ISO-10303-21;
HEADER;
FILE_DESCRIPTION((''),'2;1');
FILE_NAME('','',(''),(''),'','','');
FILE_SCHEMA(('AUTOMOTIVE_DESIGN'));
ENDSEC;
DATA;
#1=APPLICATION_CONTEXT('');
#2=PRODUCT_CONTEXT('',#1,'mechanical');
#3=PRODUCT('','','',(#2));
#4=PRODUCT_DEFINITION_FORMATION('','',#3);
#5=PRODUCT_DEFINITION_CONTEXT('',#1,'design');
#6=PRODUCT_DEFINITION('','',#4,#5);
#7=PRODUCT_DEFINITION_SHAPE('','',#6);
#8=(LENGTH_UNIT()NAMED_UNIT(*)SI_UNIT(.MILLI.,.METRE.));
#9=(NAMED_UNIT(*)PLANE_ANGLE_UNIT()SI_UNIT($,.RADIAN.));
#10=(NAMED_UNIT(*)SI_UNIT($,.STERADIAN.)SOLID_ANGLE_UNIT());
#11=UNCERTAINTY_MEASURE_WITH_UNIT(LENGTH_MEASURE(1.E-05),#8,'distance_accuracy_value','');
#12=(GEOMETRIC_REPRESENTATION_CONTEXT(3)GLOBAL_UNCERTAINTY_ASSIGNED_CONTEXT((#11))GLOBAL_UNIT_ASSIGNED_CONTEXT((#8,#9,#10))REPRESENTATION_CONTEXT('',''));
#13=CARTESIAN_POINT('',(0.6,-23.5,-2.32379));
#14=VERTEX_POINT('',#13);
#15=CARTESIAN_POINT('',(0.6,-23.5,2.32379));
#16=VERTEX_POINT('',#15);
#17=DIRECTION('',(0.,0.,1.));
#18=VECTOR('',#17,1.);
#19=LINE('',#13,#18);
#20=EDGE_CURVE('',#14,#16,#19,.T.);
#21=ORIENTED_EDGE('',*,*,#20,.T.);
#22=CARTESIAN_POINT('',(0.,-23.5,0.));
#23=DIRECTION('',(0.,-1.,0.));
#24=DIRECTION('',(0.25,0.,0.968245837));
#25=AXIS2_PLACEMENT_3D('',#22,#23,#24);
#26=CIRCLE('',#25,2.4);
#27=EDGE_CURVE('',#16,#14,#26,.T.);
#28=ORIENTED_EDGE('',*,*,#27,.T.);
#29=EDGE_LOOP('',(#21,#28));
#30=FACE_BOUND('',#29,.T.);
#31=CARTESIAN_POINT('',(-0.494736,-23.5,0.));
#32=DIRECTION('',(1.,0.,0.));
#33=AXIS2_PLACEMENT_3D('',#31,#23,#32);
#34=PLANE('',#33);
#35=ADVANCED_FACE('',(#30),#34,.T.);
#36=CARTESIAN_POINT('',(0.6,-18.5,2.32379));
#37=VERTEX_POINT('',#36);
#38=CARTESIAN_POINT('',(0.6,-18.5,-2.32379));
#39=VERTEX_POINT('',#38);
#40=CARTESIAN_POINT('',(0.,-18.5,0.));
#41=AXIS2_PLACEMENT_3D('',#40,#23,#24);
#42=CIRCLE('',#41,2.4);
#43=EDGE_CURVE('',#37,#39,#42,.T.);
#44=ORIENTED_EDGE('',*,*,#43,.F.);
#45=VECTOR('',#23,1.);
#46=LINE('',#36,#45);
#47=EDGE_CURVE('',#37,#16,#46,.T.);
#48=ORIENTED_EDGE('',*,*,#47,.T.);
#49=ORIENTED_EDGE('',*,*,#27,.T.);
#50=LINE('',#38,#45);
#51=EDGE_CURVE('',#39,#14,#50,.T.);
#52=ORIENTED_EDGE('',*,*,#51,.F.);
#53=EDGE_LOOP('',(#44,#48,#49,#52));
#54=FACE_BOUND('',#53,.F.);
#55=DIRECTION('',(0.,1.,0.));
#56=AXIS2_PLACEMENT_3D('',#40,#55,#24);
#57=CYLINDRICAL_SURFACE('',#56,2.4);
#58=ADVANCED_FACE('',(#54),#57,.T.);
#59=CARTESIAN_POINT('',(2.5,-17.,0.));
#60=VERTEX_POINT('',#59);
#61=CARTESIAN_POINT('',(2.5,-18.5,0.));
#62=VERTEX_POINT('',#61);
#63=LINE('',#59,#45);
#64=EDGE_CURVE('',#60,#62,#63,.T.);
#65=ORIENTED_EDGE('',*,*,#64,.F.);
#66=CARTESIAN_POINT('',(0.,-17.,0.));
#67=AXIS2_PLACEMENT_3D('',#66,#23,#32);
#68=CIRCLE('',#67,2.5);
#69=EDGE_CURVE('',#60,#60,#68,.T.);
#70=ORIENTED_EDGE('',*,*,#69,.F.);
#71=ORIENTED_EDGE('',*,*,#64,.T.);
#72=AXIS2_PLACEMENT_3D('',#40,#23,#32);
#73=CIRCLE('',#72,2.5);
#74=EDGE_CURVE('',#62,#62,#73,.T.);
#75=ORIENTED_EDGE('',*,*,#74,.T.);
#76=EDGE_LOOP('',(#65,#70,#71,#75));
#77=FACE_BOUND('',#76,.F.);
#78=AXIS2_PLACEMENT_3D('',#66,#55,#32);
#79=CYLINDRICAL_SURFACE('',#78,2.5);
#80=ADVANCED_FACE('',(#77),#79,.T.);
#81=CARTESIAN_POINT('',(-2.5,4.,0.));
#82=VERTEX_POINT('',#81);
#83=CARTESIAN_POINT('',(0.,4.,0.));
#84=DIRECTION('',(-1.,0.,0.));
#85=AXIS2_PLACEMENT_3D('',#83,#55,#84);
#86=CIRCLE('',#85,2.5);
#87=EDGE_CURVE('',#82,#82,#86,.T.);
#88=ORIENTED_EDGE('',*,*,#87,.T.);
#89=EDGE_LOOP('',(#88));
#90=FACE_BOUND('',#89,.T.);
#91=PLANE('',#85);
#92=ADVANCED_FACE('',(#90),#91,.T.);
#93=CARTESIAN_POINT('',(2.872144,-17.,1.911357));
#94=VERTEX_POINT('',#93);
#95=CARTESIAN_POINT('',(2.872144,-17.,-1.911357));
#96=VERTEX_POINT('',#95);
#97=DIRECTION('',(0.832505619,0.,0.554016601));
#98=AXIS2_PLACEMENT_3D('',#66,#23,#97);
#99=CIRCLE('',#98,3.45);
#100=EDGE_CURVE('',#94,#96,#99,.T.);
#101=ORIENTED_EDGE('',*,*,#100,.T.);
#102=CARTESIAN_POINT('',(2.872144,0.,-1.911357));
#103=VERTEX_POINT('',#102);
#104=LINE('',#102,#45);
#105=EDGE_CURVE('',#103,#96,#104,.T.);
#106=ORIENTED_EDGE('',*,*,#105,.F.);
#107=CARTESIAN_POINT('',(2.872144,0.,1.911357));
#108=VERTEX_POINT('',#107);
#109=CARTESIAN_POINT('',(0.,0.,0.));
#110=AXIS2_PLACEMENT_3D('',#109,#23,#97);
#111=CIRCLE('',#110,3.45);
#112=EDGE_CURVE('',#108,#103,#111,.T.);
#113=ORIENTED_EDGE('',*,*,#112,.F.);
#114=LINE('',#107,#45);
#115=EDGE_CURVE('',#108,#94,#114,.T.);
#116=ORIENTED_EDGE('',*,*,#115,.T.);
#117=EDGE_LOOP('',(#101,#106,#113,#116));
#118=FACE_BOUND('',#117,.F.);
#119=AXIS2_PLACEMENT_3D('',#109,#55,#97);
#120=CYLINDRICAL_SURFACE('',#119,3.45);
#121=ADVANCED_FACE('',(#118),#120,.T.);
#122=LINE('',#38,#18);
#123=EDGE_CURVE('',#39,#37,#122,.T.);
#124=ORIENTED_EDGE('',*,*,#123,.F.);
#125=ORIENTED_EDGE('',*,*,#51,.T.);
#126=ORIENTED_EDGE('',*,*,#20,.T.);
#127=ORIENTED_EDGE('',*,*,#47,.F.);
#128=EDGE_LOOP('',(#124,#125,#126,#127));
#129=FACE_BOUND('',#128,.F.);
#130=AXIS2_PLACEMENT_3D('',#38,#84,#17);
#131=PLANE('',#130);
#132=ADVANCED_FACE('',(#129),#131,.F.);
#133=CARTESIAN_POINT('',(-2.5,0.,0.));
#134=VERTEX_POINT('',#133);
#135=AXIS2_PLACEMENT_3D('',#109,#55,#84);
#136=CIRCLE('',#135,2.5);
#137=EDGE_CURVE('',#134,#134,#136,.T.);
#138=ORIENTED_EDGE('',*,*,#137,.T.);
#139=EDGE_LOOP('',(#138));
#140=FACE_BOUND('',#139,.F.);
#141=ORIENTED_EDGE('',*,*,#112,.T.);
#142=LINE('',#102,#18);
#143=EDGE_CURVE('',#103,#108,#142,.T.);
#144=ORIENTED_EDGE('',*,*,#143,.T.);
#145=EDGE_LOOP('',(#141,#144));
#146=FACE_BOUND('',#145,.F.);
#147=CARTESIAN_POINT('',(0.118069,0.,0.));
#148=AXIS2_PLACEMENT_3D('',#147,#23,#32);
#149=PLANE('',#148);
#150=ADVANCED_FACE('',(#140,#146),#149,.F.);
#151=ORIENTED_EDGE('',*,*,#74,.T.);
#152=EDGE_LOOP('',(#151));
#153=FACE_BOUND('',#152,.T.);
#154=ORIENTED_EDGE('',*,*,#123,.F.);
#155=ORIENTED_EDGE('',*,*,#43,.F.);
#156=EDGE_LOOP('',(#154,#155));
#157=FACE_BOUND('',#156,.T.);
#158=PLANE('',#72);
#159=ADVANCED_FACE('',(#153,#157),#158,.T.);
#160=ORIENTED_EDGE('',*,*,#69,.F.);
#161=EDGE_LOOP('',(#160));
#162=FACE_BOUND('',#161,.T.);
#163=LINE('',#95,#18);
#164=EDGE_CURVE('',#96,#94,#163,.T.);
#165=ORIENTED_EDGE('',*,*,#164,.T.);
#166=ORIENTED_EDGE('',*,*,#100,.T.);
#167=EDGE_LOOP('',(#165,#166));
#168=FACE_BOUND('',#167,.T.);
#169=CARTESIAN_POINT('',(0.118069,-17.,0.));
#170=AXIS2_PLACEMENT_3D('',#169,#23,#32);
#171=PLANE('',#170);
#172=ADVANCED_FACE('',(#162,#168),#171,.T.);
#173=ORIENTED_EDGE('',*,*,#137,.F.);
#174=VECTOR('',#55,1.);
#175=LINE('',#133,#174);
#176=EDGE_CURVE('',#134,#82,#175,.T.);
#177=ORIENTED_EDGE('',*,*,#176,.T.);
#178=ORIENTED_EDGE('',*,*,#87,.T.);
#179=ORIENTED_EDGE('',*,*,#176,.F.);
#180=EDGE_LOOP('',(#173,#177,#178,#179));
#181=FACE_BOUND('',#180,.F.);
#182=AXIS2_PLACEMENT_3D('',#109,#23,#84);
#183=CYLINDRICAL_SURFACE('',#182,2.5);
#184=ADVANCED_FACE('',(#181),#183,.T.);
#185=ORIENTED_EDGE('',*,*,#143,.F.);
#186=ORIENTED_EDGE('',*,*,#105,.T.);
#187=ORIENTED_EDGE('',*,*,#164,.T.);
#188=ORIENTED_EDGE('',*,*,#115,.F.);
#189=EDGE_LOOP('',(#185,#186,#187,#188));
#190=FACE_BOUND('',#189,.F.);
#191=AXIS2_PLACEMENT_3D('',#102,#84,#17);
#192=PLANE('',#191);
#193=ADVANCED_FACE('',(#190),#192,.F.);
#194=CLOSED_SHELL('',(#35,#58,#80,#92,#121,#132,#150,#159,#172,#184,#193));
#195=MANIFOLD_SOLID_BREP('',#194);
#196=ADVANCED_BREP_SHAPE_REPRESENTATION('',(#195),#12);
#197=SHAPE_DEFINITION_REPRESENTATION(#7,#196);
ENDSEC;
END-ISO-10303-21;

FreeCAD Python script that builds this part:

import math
import FreeCAD as App
import Part
import Sketcher
from FreeCAD import Vector
Q = App.Units.Quantity

doc = App.newDocument("Part")
params = doc.addObject("Spreadsheet::Sheet", "Params")
for row, (alias, value) in enumerate([
    ("sketch1_radius", "3.45 mm"),
    ("pad1_length", "17 mm"),
    ("sketch2_diameter", "5 mm"),
    ("pad2_length", "1.5 mm"),
    ("sketch3_diameter", "5 mm"),
    ("pad3_length", "4 mm"),
    ("sketch4_radius", "2.4 mm"),
    ("pad4_length", "5 mm"),
], start=1):
    params.set(f"A{row}", alias)
    params.set(f"B{row}", "=" + value)
    params.setAlias(f"B{row}", alias)

body = doc.addObject("PartDesign::Body", "Body")

sketch1 = body.newObject("Sketcher::SketchObject", "Sketch")
sketch1.AttachmentSupport = (doc.getObject("XZ_Plane"), [""])
sketch1.MapMode = "FlatFace"
sketch1.addGeometry([
    Part.LineSegment(Vector(2.9, -1.9, 0), Vector(2.9, 1.9, 0)),
    Part.ArcOfCircle(Part.Circle(Vector(0, 0, 0), Vector(0, 0, 1), 3.5), math.radians(34), math.radians(326)),
], False)
sketch1.addConstraint([
    Sketcher.Constraint("Coincident", 0, 1, 1, 2),
    Sketcher.Constraint("Coincident", 1, 1, 0, 2),
    Sketcher.Constraint("Vertical", 0),
    Sketcher.Constraint("Coincident", 1, 3, -1, 1),
    Sketcher.Constraint("Radius", 1, Q("3.45 mm")),
    Sketcher.Constraint("DistanceY", 0, 1, 0, 2, Q("3.822715 mm")),
])
sketch1.setExpression("Constraints[4]", "Params.sketch1_radius")
pad1 = body.newObject("PartDesign::Pad", "Pad")
pad1.Profile = sketch1
pad1.setExpression("Length", "Params.pad1_length")

sketch2 = body.newObject("Sketcher::SketchObject", "Sketch001")
sketch2.AttachmentSupport = (doc.getObject("XZ_Plane"), [""])
sketch2.MapMode = "FlatFace"
sketch2.AttachmentOffset = App.Placement(Vector(0, 0, 17), App.Rotation())
sketch2.addGeometry(Part.Circle(Vector(0, 0, 0), Vector(0, 0, 1), 2.5), False)
sketch2.addConstraint([
    Sketcher.Constraint("Coincident", 0, 3, -1, 1),
    Sketcher.Constraint("Diameter", 0, Q("5 mm")),
])
sketch2.setExpression("Constraints[1]", "Params.sketch2_diameter")
pad2 = body.newObject("PartDesign::Pad", "Pad001")
pad2.Profile = sketch2
pad2.setExpression("Length", "Params.pad2_length")

sketch3 = body.newObject("Sketcher::SketchObject", "Sketch002")
sketch3.AttachmentSupport = (doc.getObject("XZ_Plane"), [""])
sketch3.MapMode = "FlatFace"
sketch3.addGeometry(Part.Circle(Vector(0, 0, 0), Vector(0, 0, 1), 2.5), False)
sketch3.addConstraint([
    Sketcher.Constraint("Coincident", 0, 3, -1, 1),
    Sketcher.Constraint("Diameter", 0, Q("5 mm")),
])
sketch3.setExpression("Constraints[1]", "Params.sketch3_diameter")
pad3 = body.newObject("PartDesign::Pad", "Pad002")
pad3.Profile = sketch3
pad3.setExpression("Length", "Params.pad3_length")
pad3.Reversed = True

sketch4 = body.newObject("Sketcher::SketchObject", "Sketch003")
sketch4.AttachmentSupport = (doc.getObject("XZ_Plane"), [""])
sketch4.MapMode = "FlatFace"
sketch4.AttachmentOffset = App.Placement(Vector(0, 0, 18.5), App.Rotation())
sketch4.addGeometry([
    Part.LineSegment(Vector(0.6, -2.3, 0), Vector(0.6, 2.3, 0)),
    Part.ArcOfCircle(Part.Circle(Vector(0, 0, 0), Vector(0, 0, 1), 2.4), math.radians(76), math.radians(284)),
], False)
sketch4.addConstraint([
    Sketcher.Constraint("Coincident", 0, 1, 1, 2),
    Sketcher.Constraint("Coincident", 1, 1, 0, 2),
    Sketcher.Constraint("Vertical", 0),
    Sketcher.Constraint("Coincident", 1, 3, -1, 1),
    Sketcher.Constraint("Radius", 1, Q("2.4 mm")),
    Sketcher.Constraint("DistanceX", -1, 1, 0, 1, Q("0.6 mm")),
])
sketch4.setExpression("Constraints[4]", "Params.sketch4_radius")
pad4 = body.newObject("PartDesign::Pad", "Pad003")
pad4.Profile = sketch4
pad4.setExpression("Length", "Params.pad4_length")

doc.recompute()
